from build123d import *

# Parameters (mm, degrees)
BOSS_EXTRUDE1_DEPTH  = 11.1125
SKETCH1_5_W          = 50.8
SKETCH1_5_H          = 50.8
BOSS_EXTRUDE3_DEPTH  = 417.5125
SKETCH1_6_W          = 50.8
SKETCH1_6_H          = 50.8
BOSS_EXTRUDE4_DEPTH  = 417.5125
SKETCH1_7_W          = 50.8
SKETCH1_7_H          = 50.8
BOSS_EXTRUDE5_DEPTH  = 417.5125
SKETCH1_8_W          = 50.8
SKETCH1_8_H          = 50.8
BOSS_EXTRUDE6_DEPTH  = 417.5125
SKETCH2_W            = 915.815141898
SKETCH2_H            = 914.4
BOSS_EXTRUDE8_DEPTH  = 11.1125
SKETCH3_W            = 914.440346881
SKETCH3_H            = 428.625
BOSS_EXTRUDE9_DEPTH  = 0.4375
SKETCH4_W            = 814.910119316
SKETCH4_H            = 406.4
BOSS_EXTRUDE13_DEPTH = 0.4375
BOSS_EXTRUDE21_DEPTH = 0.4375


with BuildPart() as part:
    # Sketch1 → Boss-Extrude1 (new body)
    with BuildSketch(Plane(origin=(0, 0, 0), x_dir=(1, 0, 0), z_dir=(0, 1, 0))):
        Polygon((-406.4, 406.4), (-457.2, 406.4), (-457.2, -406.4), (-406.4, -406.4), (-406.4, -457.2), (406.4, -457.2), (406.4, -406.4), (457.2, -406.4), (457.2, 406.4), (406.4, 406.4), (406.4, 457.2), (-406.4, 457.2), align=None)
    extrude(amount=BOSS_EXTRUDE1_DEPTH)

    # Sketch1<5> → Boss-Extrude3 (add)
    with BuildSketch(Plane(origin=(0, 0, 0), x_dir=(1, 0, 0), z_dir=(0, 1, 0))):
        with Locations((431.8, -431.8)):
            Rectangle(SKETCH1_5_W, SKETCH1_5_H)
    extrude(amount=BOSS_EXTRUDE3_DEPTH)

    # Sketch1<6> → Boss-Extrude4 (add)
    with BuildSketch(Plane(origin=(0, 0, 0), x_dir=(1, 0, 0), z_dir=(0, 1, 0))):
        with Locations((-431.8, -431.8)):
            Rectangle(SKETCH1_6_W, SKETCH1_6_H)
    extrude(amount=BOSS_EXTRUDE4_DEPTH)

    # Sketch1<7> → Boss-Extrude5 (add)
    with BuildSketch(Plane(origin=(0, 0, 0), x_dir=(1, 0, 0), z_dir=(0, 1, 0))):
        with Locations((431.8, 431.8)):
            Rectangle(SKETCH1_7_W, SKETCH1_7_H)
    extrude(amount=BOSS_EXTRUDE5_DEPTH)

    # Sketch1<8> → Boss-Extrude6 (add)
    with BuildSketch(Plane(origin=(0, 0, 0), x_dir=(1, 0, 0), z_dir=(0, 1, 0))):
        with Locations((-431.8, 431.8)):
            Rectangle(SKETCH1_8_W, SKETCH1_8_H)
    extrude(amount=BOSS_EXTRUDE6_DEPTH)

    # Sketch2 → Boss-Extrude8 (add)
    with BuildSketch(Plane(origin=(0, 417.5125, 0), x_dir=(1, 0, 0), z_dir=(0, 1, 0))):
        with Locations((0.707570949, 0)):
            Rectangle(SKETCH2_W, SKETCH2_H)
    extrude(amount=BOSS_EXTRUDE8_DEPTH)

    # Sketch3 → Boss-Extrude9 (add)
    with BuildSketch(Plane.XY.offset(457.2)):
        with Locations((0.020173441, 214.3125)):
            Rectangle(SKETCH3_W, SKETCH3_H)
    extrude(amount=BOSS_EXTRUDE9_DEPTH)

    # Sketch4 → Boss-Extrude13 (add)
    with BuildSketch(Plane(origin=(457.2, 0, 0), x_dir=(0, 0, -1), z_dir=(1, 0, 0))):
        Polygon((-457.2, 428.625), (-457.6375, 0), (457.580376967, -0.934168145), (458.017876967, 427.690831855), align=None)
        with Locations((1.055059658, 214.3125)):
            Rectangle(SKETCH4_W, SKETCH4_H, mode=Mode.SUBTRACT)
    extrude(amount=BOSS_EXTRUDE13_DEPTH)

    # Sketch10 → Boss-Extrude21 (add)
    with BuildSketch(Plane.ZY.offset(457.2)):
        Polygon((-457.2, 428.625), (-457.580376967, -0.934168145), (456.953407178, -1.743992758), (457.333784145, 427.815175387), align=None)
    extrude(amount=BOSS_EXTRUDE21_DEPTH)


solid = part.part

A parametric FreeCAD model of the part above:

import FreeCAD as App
import Part
import Sketcher

V = App.Vector
Q = App.Units.Quantity

doc = App.newDocument("Part")
body = doc.addObject("PartDesign::Body", "Body")

sketch1 = body.newObject("Sketcher::SketchObject", "Sketch")
sketch1.AttachmentSupport = (doc.getObject("XZ_Plane"), [""])
sketch1.MapMode = "FlatFace"
sketch1.addGeometry([
    Part.LineSegment(V(-406, -406, 0), V(-457, -406, 0)),
    Part.LineSegment(V(-457, -406, 0), V(-457, 406, 0)),
    Part.LineSegment(V(-457, 406, 0), V(-406, 406, 0)),
    Part.LineSegment(V(-406, 406, 0), V(-406, 457, 0)),
    Part.LineSegment(V(-406, 457, 0), V(406, 457, 0)),
    Part.LineSegment(V(406, 457, 0), V(406, 406, 0)),
    Part.LineSegment(V(406, 406, 0), V(457, 406, 0)),
    Part.LineSegment(V(457, 406, 0), V(457, -406, 0)),
    Part.LineSegment(V(457, -406, 0), V(406, -406, 0)),
    Part.LineSegment(V(406, -406, 0), V(406, -457, 0)),
    Part.LineSegment(V(406, -457, 0), V(-406, -457, 0)),
    Part.LineSegment(V(-406, -457, 0), V(-406, -406, 0)),
], False)
sketch1.addConstraint([
    Sketcher.Constraint("Coincident", 0, 2, 1, 1),
    Sketcher.Constraint("Coincident", 1, 2, 2, 1),
    Sketcher.Constraint("Coincident", 2, 2, 3, 1),
    Sketcher.Constraint("Coincident", 3, 2, 4, 1),
    Sketcher.Constraint("Coincident", 4, 2, 5, 1),
    Sketcher.Constraint("Coincident", 5, 2, 6, 1),
    Sketcher.Constraint("Coincident", 6, 2, 7, 1),
    Sketcher.Constraint("Coincident", 7, 2, 8, 1),
    Sketcher.Constraint("Coincident", 8, 2, 9, 1),
    Sketcher.Constraint("Coincident", 9, 2, 10, 1),
    Sketcher.Constraint("Coincident", 10, 2, 11, 1),
    Sketcher.Constraint("Coincident", 11, 2, 0, 1),
    Sketcher.Constraint("Horizontal", 0),
    Sketcher.Constraint("Vertical", 1),
    Sketcher.Constraint("Horizontal", 2),
    Sketcher.Constraint("Vertical", 3),
    Sketcher.Constraint("Horizontal", 4),
    Sketcher.Constraint("Vertical", 5),
    Sketcher.Constraint("Horizontal", 6),
    Sketcher.Constraint("Vertical", 7),
    Sketcher.Constraint("Horizontal", 8),
    Sketcher.Constraint("Vertical", 9),
    Sketcher.Constraint("Horizontal", 10),
    Sketcher.Constraint("Vertical", 11),
    Sketcher.Constraint("Symmetric", 0, 2, 6, 2, -1, 1),
    Sketcher.Constraint("Symmetric", 2, 2, 8, 2, -1, 1),
    Sketcher.Constraint("Symmetric", 4, 2, 10, 2, -1, 1),
    Sketcher.Constraint("Symmetric", 2, 2, 5, 2, -2),
    Sketcher.Constraint("Equal", 10, 1),
    Sketcher.Constraint("Equal", 8, 3),
    Sketcher.Constraint("DistanceX", 0, 2, 0, 1, Q("2 in")),
    Sketcher.Constraint("DistanceX", 4, 1, 4, 2, Q("32 in")),
])
pad1 = body.newObject("PartDesign::Pad", "Pad")
pad1.Profile = sketch1
pad1.Length = Q("0.4375 in")
pad1.Reversed = True

sketch2 = body.newObject("Sketcher::SketchObject", "Sketch001")
sketch2.AttachmentSupport = (doc.getObject("XZ_Plane"), [""])
sketch2.MapMode = "FlatFace"
sketch2.addGeometry([
    Part.LineSegment(V(406, 406, 0), V(406, 457, 0)),
    Part.LineSegment(V(406, 457, 0), V(457, 457, 0)),
    Part.LineSegment(V(457, 457, 0), V(457, 406, 0)),
    Part.LineSegment(V(457, 406, 0), V(406, 406, 0)),
], False)
sketch2.addConstraint([
    Sketcher.Constraint("Coincident", 0, 2, 1, 1),
    Sketcher.Constraint("Coincident", 1, 2, 2, 1),
    Sketcher.Constraint("Coincident", 2, 2, 3, 1),
    Sketcher.Constraint("Coincident", 3, 2, 0, 1),
    Sketcher.Constraint("Vertical", 0),
    Sketcher.Constraint("Horizontal", 1),
    Sketcher.Constraint("Vertical", 2),
    Sketcher.Constraint("Horizontal", 3),
    Sketcher.Constraint("Equal", 3, 0),
    Sketcher.Constraint("DistanceX", 1, 1, 1, 2, Q("2 in")),
    Sketcher.Constraint("DistanceX", -1, 1, 0, 2, Q("16 in")),
    Sketcher.Constraint("DistanceY", -1, 1, 0, 2, Q("18 in")),
])
pad2 = body.newObject("PartDesign::Pad", "Pad001")
pad2.Profile = sketch2
pad2.Length = Q("16.4375 in")
pad2.Reversed = True

sketch3 = body.newObject("Sketcher::SketchObject", "Sketch002")
sketch3.AttachmentSupport = (doc.getObject("XZ_Plane"), [""])
sketch3.MapMode = "FlatFace"
sketch3.addGeometry([
    Part.LineSegment(V(-457, 406, 0), V(-457, 457, 0)),
    Part.LineSegment(V(-457, 457, 0), V(-406, 457, 0)),
    Part.LineSegment(V(-406, 457, 0), V(-406, 406, 0)),
    Part.LineSegment(V(-406, 406, 0), V(-457, 406, 0)),
], False)
sketch3.addConstraint([
    Sketcher.Constraint("Coincident", 0, 2, 1, 1),
    Sketcher.Constraint("Coincident", 1, 2, 2, 1),
    Sketcher.Constraint("Coincident", 2, 2, 3, 1),
    Sketcher.Constraint("Coincident", 3, 2, 0, 1),
    Sketcher.Constraint("Vertical", 0),
    Sketcher.Constraint("Horizontal", 1),
    Sketcher.Constraint("Vertical", 2),
    Sketcher.Constraint("Horizontal", 3),
    Sketcher.Constraint("Equal", 3, 0),
    Sketcher.Constraint("DistanceX", 1, 1, 1, 2, Q("2 in")),
    Sketcher.Constraint("DistanceX", 0, 2, -1, 1, Q("18 in")),
    Sketcher.Constraint("DistanceY", -1, 1, 0, 2, Q("18 in")),
])
pad3 = body.newObject("PartDesign::Pad", "Pad002")
pad3.Profile = sketch3
pad3.Length = Q("16.4375 in")
pad3.Reversed = True

sketch4 = body.newObject("Sketcher::SketchObject", "Sketch003")
sketch4.AttachmentSupport = (doc.getObject("XZ_Plane"), [""])
sketch4.MapMode = "FlatFace"
sketch4.addGeometry([
    Part.LineSegment(V(406, -457, 0), V(406, -406, 0)),
    Part.LineSegment(V(406, -406, 0), V(457, -406, 0)),
    Part.LineSegment(V(457, -406, 0), V(457, -457, 0)),
    Part.LineSegment(V(457, -457, 0), V(406, -457, 0)),
], False)
sketch4.addConstraint([
    Sketcher.Constraint("Coincident", 0, 2, 1, 1),
    Sketcher.Constraint("Coincident", 1, 2, 2, 1),
    Sketcher.Constraint("Coincident", 2, 2, 3, 1),
    Sketcher.Constraint("Coincident", 3, 2, 0, 1),
    Sketcher.Constraint("Vertical", 0),
    Sketcher.Constraint("Horizontal", 1),
    Sketcher.Constraint("Vertical", 2),
    Sketcher.Constraint("Horizontal", 3),
    Sketcher.Constraint("Equal", 3, 0),
    Sketcher.Constraint("DistanceX", 1, 1, 1, 2, Q("2 in")),
    Sketcher.Constraint("DistanceX", -1, 1, 0, 2, Q("16 in")),
    Sketcher.Constraint("DistanceY", 0, 2, -1, 1, Q("16 in")),
])
pad4 = body.newObject("PartDesign::Pad", "Pad003")
pad4.Profile = sketch4
pad4.Length = Q("16.4375 in")
pad4.Reversed = True

sketch5 = body.newObject("Sketcher::SketchObject", "Sketch004")
sketch5.AttachmentSupport = (doc.getObject("XZ_Plane"), [""])
sketch5.MapMode = "FlatFace"
sketch5.addGeometry([
    Part.LineSegment(V(-457, -457, 0), V(-457, -406, 0)),
    Part.LineSegment(V(-457, -406, 0), V(-406, -406, 0)),
    Part.LineSegment(V(-406, -406, 0), V(-406, -457, 0)),
    Part.LineSegment(V(-406, -457, 0), V(-457, -457, 0)),
], False)
sketch5.addConstraint([
    Sketcher.Constraint("Coincident", 0, 2, 1, 1),
    Sketcher.Constraint("Coincident", 1, 2, 2, 1),
    Sketcher.Constraint("Coincident", 2, 2, 3, 1),
    Sketcher.Constraint("Coincident", 3, 2, 0, 1),
    Sketcher.Constraint("Vertical", 0),
    Sketcher.Constraint("Horizontal", 1),
    Sketcher.Constraint("Vertical", 2),
    Sketcher.Constraint("Horizontal", 3),
    Sketcher.Constraint("Equal", 3, 0),
    Sketcher.Constraint("DistanceX", 1, 1, 1, 2, Q("2 in")),
    Sketcher.Constraint("DistanceX", 0, 2, -1, 1, Q("18 in")),
    Sketcher.Constraint("DistanceY", 0, 2, -1, 1, Q("16 in")),
])
pad5 = body.newObject("PartDesign::Pad", "Pad004")
pad5.Profile = sketch5
pad5.Length = Q("16.4375 in")
pad5.Reversed = True

sketch6 = body.newObject("Sketcher::SketchObject", "Sketch005")
sketch6.AttachmentSupport = (doc.getObject("XZ_Plane"), [""])
sketch6.MapMode = "FlatFace"
sketch6.AttachmentOffset = App.Placement(V(0, 0, -16.4375 * 25.4), App.Rotation())
sketch6.addGeometry([
    Part.LineSegment(V(-457, -457, 0), V(-457, 457, 0)),
    Part.LineSegment(V(-457, 457, 0), V(459, 457, 0)),
    Part.LineSegment(V(459, 457, 0), V(459, -457, 0)),
    Part.LineSegment(V(459, -457, 0), V(-457, -457, 0)),
], False)
sketch6.addConstraint([
    Sketcher.Constraint("Coincident", 0, 2, 1, 1),
    Sketcher.Constraint("Coincident", 1, 2, 2, 1),
    Sketcher.Constraint("Coincident", 2, 2, 3, 1),
    Sketcher.Constraint("Coincident", 3, 2, 0, 1),
    Sketcher.Constraint("Vertical", 0),
    Sketcher.Constraint("Horizontal", 1),
    Sketcher.Constraint("Vertical", 2),
    Sketcher.Constraint("Horizontal", 3),
    Sketcher.Constraint("DistanceY", 0, 1, 0, 2, Q("36 in")),
    Sketcher.Constraint("DistanceX", 0, 2, -1, 1, Q("18 in")),
    Sketcher.Constraint("DistanceY", -1, 1, 0, 2, Q("18 in")),
    Sketcher.Constraint("DistanceX", 1, 1, 1, 2, 915.815142),
])
pad6 = body.newObject("PartDesign::Pad", "Pad005")
pad6.Profile = sketch6
pad6.Length = Q("0.4375 in")
pad6.Reversed = True

sketch7 = body.newObject("Sketcher::SketchObject", "Sketch006")
sketch7.AttachmentSupport = (doc.getObject("XY_Plane"), [""])
sketch7.MapMode = "FlatFace"
sketch7.AttachmentOffset = App.Placement(V(0, 0, 18 * 25.4), App.Rotation())
sketch7.addGeometry([
    Part.LineSegment(V(-457, 429, 0), V(-457, 0, 0)),
    Part.LineSegment(V(-457, 0, 0), V(457, 0, 0)),
    Part.LineSegment(V(457, 0, 0), V(457, 429, 0)),
    Part.LineSegment(V(457, 429, 0), V(-457, 429, 0)),
], False)
sketch7.addConstraint([
    Sketcher.Constraint("Coincident", 0, 2, 1, 1),
    Sketcher.Constraint("Coincident", 1, 2, 2, 1),
    Sketcher.Constraint("Coincident", 2, 2, 3, 1),
    Sketcher.Constraint("Coincident", 3, 2, 0, 1),
    Sketcher.Constraint("Vertical", 0),
    Sketcher.Constraint("Horizontal", 1),
    Sketcher.Constraint("Vertical", 2),
    Sketcher.Constraint("Horizontal", 3),
    Sketcher.Constraint("PointOnObject", 0, 2, -1),
    Sketcher.Constraint("DistanceX", 0, 2, -1, 1, Q("18 in")),
    Sketcher.Constraint("DistanceY", 0, 2, 0, 1, Q("16.875 in")),
    Sketcher.Constraint("DistanceX", 1, 1, 1, 2, 914.440347),
])
pad7 = body.newObject("PartDesign::Pad", "Pad006")
pad7.Profile = sketch7
pad7.Length = 0.4375

sketch8 = body.newObject("Sketcher::SketchObject", "Sketch007")
sketch8.AttachmentSupport = (doc.getObject("YZ_Plane"), [""])
sketch8.MapMode = "FlatFace"
sketch8.AttachmentOffset = App.Placement(V(0, 0, 18 * 25.4), App.Rotation())
sketch8.addGeometry([
    Part.LineSegment(V(429, 457, 0), V(0, 458, 0)),
    Part.LineSegment(V(0, 458, 0), V(-1, -458, 0)),
    Part.LineSegment(V(-1, -458, 0), V(428, -458, 0)),
    Part.LineSegment(V(428, -458, 0), V(429, 457, 0)),
    Part.LineSegment(V(11, -409, 0), V(11, 406, 0)),
    Part.LineSegment(V(11, 406, 0), V(418, 406, 0)),
    Part.LineSegment(V(418, 406, 0), V(418, -409, 0)),
    Part.LineSegment(V(418, -409, 0), V(11, -409, 0)),
], False)
sketch8.addConstraint([
    Sketcher.Constraint("Coincident", 0, 2, 1, 1),
    Sketcher.Constraint("Coincident", 1, 2, 2, 1),
    Sketcher.Constraint("Coincident", 2, 2, 3, 1),
    Sketcher.Constraint("Coincident", 3, 2, 0, 1),
    Sketcher.Constraint("Coincident", 4, 2, 5, 1),
    Sketcher.Constraint("Coincident", 5, 2, 6, 1),
    Sketcher.Constraint("Coincident", 6, 2, 7, 1),
    Sketcher.Constraint("Coincident", 7, 2, 4, 1),
    Sketcher.Constraint("Vertical", 4),
    Sketcher.Constraint("Horizontal", 5),
    Sketcher.Constraint("Vertical", 6),
    Sketcher.Constraint("Horizontal", 7),
    Sketcher.Constraint("PointOnObject", 0, 2, -2),
    Sketcher.Constraint("Perpendicular", 0, 1),
    Sketcher.Constraint("Perpendicular", 1, 2),
    Sketcher.Constraint("Perpendicular", 2, 3),
    Sketcher.Constraint("DistanceX", 5, 1, 5, 2, Q("16 in")),
    Sketcher.Constraint("DistanceY", -1, 1, 3, 2, Q("18 in")),
    Sketcher.Constraint("DistanceY", -1, 1, 4, 2, Q("16 in")),
    Sketcher.Constraint("DistanceX", -1, 1, 3, 2, Q("16.875 in")),
    Sketcher.Constraint("DistanceX", -1, 1, 4, 2, Q("0.4375 in")),
    Sketcher.Constraint("DistanceY", 2, 2, -1, 1, Q("18.0321999 in")),
    Sketcher.Constraint("DistanceY", 1, 2, 6, 2, Q("1.9318999 in")),
    Sketcher.Constraint("DistanceY", 4, 1, 4, 2, 814.910119),
])
pad8 = body.newObject("PartDesign::Pad", "Pad007")
pad8.Profile = sketch8
pad8.Length = 0.4375

sketch9 = body.newObject("Sketcher::SketchObject", "Sketch008")
sketch9.AttachmentSupport = (doc.getObject("YZ_Plane"), [""])
sketch9.MapMode = "FlatFace"
sketch9.AttachmentOffset = App.Placement(V(0, 0, -18 * 25.4), App.Rotation())
sketch9.addGeometry([
    Part.LineSegment(V(429, -457, 0), V(-1, -458, 0)),
    Part.LineSegment(V(-1, -458, 0), V(-2, 457, 0)),
    Part.LineSegment(V(-2, 457, 0), V(428, 457, 0)),
    Part.LineSegment(V(428, 457, 0), V(429, -457, 0)),
], False)
sketch9.addConstraint([
    Sketcher.Constraint("Coincident", 0, 2, 1, 1),
    Sketcher.Constraint("Coincident", 1, 2, 2, 1),
    Sketcher.Constraint("Coincident", 2, 2, 3, 1),
    Sketcher.Constraint("Coincident", 3, 2, 0, 1),
    Sketcher.Constraint("Perpendicular", 0, 1),
    Sketcher.Constraint("Perpendicular", 1, 2),
    Sketcher.Constraint("Perpendicular", 2, 3),
    Sketcher.Constraint("DistanceY", 3, 2, -1, 1, Q("18 in")),
    Sketcher.Constraint("DistanceX", -1, 1, 3, 2, Q("16.875 in")),
    Sketcher.Constraint("DistanceX", 0, 2, -1, 1, 0.934168),
    Sketcher.Constraint("DistanceY", 0, 2, 2, 2, 914.914161),
    Sketcher.Constraint("Distance", 1, 914.534143),
])
pad9 = body.newObject("PartDesign::Pad", "Pad008")
pad9.Profile = sketch9
pad9.Length = 0.4375
pad9.Reversed = True

doc.recompute()
